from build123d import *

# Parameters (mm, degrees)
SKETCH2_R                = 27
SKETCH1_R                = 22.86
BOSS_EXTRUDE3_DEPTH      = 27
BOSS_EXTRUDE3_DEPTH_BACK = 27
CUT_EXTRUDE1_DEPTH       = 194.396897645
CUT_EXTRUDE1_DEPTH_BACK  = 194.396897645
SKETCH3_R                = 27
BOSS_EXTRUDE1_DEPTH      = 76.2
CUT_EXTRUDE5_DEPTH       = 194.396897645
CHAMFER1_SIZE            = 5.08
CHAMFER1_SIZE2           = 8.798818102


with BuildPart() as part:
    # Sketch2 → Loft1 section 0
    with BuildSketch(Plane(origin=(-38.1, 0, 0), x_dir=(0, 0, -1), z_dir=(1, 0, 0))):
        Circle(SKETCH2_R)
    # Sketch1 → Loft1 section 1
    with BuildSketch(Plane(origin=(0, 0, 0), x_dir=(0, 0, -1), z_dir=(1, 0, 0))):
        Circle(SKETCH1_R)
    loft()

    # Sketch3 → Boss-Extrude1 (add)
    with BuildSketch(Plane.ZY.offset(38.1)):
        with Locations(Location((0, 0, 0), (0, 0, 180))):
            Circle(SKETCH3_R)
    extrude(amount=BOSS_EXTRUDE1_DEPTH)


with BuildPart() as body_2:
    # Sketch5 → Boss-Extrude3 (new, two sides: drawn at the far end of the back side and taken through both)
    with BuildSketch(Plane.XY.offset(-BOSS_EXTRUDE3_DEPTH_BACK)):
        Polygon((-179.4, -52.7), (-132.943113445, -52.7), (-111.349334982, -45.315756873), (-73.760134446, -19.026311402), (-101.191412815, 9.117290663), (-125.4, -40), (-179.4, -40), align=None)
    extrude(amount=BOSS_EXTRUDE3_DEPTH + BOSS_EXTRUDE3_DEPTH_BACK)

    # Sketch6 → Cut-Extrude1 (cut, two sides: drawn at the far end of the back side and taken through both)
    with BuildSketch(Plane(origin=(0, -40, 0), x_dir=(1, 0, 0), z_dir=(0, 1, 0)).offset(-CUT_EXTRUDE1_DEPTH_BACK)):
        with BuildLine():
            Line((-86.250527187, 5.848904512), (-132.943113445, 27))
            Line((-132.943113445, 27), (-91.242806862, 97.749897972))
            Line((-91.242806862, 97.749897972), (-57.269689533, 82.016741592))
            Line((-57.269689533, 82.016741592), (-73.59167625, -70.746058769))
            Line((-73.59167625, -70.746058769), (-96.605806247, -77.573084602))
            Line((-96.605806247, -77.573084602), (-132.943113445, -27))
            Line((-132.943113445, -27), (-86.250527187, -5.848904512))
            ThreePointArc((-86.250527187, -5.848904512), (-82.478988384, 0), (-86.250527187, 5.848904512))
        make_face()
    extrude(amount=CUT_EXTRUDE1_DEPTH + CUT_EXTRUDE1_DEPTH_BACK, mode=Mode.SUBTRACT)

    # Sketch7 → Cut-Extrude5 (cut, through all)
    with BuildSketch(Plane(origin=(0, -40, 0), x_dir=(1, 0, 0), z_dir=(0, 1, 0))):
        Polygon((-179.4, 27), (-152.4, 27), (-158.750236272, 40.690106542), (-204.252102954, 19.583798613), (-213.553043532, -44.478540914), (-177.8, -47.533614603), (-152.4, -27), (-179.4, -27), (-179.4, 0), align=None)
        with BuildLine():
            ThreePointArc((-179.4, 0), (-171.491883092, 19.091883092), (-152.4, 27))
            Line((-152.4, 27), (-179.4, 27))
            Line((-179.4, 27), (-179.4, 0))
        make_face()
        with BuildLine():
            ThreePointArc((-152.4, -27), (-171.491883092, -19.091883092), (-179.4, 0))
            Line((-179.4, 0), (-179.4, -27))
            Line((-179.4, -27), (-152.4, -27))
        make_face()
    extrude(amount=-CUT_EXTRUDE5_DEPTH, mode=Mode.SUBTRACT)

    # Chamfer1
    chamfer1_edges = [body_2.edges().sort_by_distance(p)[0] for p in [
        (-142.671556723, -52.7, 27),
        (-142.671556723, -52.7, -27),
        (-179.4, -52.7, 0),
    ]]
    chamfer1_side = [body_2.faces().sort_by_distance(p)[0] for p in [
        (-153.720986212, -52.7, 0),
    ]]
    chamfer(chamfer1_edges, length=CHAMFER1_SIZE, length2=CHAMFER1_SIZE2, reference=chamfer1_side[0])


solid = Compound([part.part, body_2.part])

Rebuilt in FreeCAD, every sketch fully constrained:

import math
import FreeCAD as App
import Part
import Sketcher
Q = App.Units.Quantity


def edges_at(feature, points):
    """Names of the edges that pass closest to the given points."""
    edges = feature.Shape.Edges
    near = lambda p: min(range(len(edges)), key=lambda i: edges[i].distToShape(Part.Vertex(*p))[0])
    return sorted({f"Edge{near(p) + 1}" for p in points})

doc = App.newDocument("Part")
body = doc.addObject("PartDesign::Body", "Body")

sketch1 = body.newObject("Sketcher::SketchObject", "Sketch")
sketch1.AttachmentSupport = (doc.getObject("YZ_Plane"), [""])
sketch1.MapMode = "FlatFace"
sketch1.AttachmentOffset = App.Placement(App.Vector(0, 0, -1.5 * 25.4), App.Rotation())
sketch1.addGeometry(Part.Circle(App.Vector(0, 0, 0), App.Vector(0, 0, 1), 27), False)
sketch1.addConstraint([
    Sketcher.Constraint("Coincident", 0, 3, -1, 1),
    Sketcher.Constraint("Diameter", 0, Q("54 mm")),
])

sketch2 = body.newObject("Sketcher::SketchObject", "Sketch001")
sketch2.AttachmentSupport = (doc.getObject("YZ_Plane"), [""])
sketch2.MapMode = "FlatFace"
sketch2.addGeometry(Part.Circle(App.Vector(0, 0, 0), App.Vector(0, 0, 1), 22.86), False)
sketch2.addConstraint([
    Sketcher.Constraint("Coincident", 0, 3, -1, 1),
    Sketcher.Constraint("Diameter", 0, Q("1.8 in")),
])

additiveloft = body.newObject("PartDesign::AdditiveLoft", "AdditiveLoft")
additiveloft.Profile = sketch1
additiveloft.Sections = [sketch2]

sketch3 = body.newObject("Sketcher::SketchObject", "Sketch002")
sketch3.AttachmentSupport = (doc.getObject("YZ_Plane"), [""])
sketch3.MapMode = "FlatFace"
sketch3.AttachmentOffset = App.Placement(App.Vector(0, 0, -1.5 * 25.4), App.Rotation())
sketch3.addGeometry(Part.Circle(App.Vector(0, 0, 0), App.Vector(0, 0, 1), 27), False)
sketch3.addConstraint([
    Sketcher.Constraint("Coincident", 0, 3, -1, 1),
    Sketcher.Constraint("Diameter", 0, Q("54 mm")),
])
pad1 = body.newObject("PartDesign::Pad", "Pad")
pad1.Profile = sketch3
pad1.Length = Q("3 in")
pad1.Reversed = True
body2 = doc.addObject("PartDesign::Body", "Body001")

sketch4 = body2.newObject("Sketcher::SketchObject", "Sketch003")
sketch4.AttachmentSupport = (doc.getObject("XY_Plane001"), [""])
sketch4.MapMode = "FlatFace"
sketch4.addGeometry([
    Part.LineSegment(App.Vector(-179.4, -52.7, 0), App.Vector(-132.943113, -52.7, 0)),
    Part.LineSegment(App.Vector(-132.943113, -52.7, 0), App.Vector(-111.349335, -45.315757, 0)),
    Part.LineSegment(App.Vector(-111.349335, -45.315757, 0), App.Vector(-73.760134, -19.026311, 0)),
    Part.LineSegment(App.Vector(-73.760134, -19.026311, 0), App.Vector(-101.191413, 9.117291, 0)),
    Part.LineSegment(App.Vector(-101.191413, 9.117291, 0), App.Vector(-125.4, -40, 0)),
    Part.LineSegment(App.Vector(-125.4, -40, 0), App.Vector(-179.4, -40, 0)),
    Part.LineSegment(App.Vector(-179.4, -40, 0), App.Vector(-179.4, -52.7, 0)),
], False)
sketch4.addConstraint([
    Sketcher.Constraint("Coincident", 0, 2, 1, 1),
    Sketcher.Constraint("Coincident", 1, 2, 2, 1),
    Sketcher.Constraint("Coincident", 2, 2, 3, 1),
    Sketcher.Constraint("Coincident", 3, 2, 4, 1),
    Sketcher.Constraint("Coincident", 4, 2, 5, 1),
    Sketcher.Constraint("Coincident", 5, 2, 6, 1),
    Sketcher.Constraint("Coincident", 6, 2, 0, 1),
    Sketcher.Constraint("Horizontal", 0),
    Sketcher.Constraint("Horizontal", 5),
    Sketcher.Constraint("Vertical", 6),
    Sketcher.Constraint("DistanceY", 6, 2, 6, 1, Q("0.5 in")),
    Sketcher.Constraint("DistanceX", 5, 2, 5, 1, Q("54 mm")),
    Sketcher.Constraint("DistanceY", 0, 2, -1, 1, Q("52.7 mm")),
    Sketcher.Constraint("DistanceX", 4, 2, -1, 1, Q("125.4 mm")),
    Sketcher.Constraint("DistanceX", 1, 2, 2, 2, Q("37.589201 mm")),
    Sketcher.Constraint("DistanceX", 0, 2, 3, 2, Q("31.751701 mm")),
    Sketcher.Constraint("DistanceX", 0, 1, 0, 2, Q("46.456887 mm")),
    Sketcher.Constraint("DistanceY", 2, 2, -1, 1, Q("19.026311 mm")),
    Sketcher.Constraint("DistanceY", -1, 1, 3, 2, Q("9.117291 mm")),
    Sketcher.Constraint("DistanceX", 0, 2, 1, 2, Q("21.593778 mm")),
    Sketcher.Constraint("Distance", 1, Q("22.821444 mm")),
])
pad2 = body2.newObject("PartDesign::Pad", "Pad001")
pad2.Profile = sketch4
pad2.Type = "TwoLengths"
pad2.Length = 27
pad2.Length2 = 27

sketch5 = body2.newObject("Sketcher::SketchObject", "Sketch004")
sketch5.AttachmentSupport = (doc.getObject("XZ_Plane001"), [""])
sketch5.MapMode = "FlatFace"
sketch5.AttachmentOffset = App.Placement(App.Vector(0, 0, 40), App.Rotation())
sketch5.addGeometry([
    Part.LineSegment(App.Vector(-132.943113, -27, 0), App.Vector(-86.250527, -5.848905, 0)),
    Part.ArcOfCircle(Part.Circle(App.Vector(-88.9, 0, 0), App.Vector(0, 0, 1), 6.421012), math.radians(-65.630131), math.radians(65.630131)),
    Part.LineSegment(App.Vector(-86.250527, 5.848905, 0), App.Vector(-132.943113, 27, 0)),
    Part.LineSegment(App.Vector(-132.943113, 27, 0), App.Vector(-96.605806, 77.573085, 0)),
    Part.LineSegment(App.Vector(-96.605806, 77.573085, 0), App.Vector(-73.591676, 70.746059, 0)),
    Part.LineSegment(App.Vector(-73.591676, 70.746059, 0), App.Vector(-57.26969, -82.016742, 0)),
    Part.LineSegment(App.Vector(-57.26969, -82.016742, 0), App.Vector(-91.242807, -97.749898, 0)),
    Part.LineSegment(App.Vector(-91.242807, -97.749898, 0), App.Vector(-132.943113, -27, 0)),
], False)
sketch5.addConstraint([
    Sketcher.Constraint("Tangent", 0, 2, 1, 1),
    Sketcher.Constraint("Tangent", 1, 2, 2, 1),
    Sketcher.Constraint("Coincident", 2, 2, 3, 1),
    Sketcher.Constraint("Coincident", 3, 2, 4, 1),
    Sketcher.Constraint("Coincident", 4, 2, 5, 1),
    Sketcher.Constraint("Coincident", 5, 2, 6, 1),
    Sketcher.Constraint("Coincident", 6, 2, 7, 1),
    Sketcher.Constraint("Coincident", 7, 2, 0, 1),
    Sketcher.Constraint("Symmetric", 0, 2, 1, 2, -1),
    Sketcher.Constraint("Vertical", 2, 2, 7, 2),
    Sketcher.Constraint("DistanceX", 1, 3, -1, 1, Q("3.5 in")),
    Sketcher.Constraint("Radius", 1, Q("6.421012 mm")),
    Sketcher.Constraint("DistanceY", -1, 1, 2, 2, Q("27 mm")),
    Sketcher.Constraint("DistanceY", 5, 2, 4, 2, Q("152.7628 mm")),
    Sketcher.Constraint("Distance", 5, Q("153.63229 mm")),
    Sketcher.Constraint("Distance", 6, Q("37.43935 mm")),
    Sketcher.Constraint("DistanceY", -1, 1, 4, 2, Q("70.746059 mm")),
    Sketcher.Constraint("DistanceX", 5, 2, -1, 1, Q("57.26969 mm")),
    Sketcher.Constraint("DistanceY", 0, 2, 1, 2, Q("11.697809 mm")),
    Sketcher.Constraint("DistanceX", 3, 2, 1, 2, Q("10.355279 mm")),
    Sketcher.Constraint("DistanceY", 1, 2, 3, 2, Q("71.72418 mm")),
    Sketcher.Constraint("DistanceX", 6, 2, 0, 2, Q("4.99228 mm")),
])
pocket1 = body2.newObject("PartDesign::Pocket", "Pocket")
pocket1.Profile = sketch5
pocket1.Type = "ThroughAll"
pocket1.Midplane = True

sketch6 = body2.newObject("Sketcher::SketchObject", "Sketch005")
sketch6.AttachmentSupport = (doc.getObject("XZ_Plane001"), [""])
sketch6.MapMode = "FlatFace"
sketch6.AttachmentOffset = App.Placement(App.Vector(0, 0, 40), App.Rotation())
sketch6.addGeometry([
    Part.LineSegment(App.Vector(-152.4, -27, 0), App.Vector(-158.750236, -40.690107, 0)),
    Part.LineSegment(App.Vector(-158.750236, -40.690107, 0), App.Vector(-204.252103, -19.583799, 0)),
    Part.LineSegment(App.Vector(-204.252103, -19.583799, 0), App.Vector(-213.553044, 44.478541, 0)),
    Part.LineSegment(App.Vector(-213.553044, 44.478541, 0), App.Vector(-177.8, 47.533615, 0)),
    Part.LineSegment(App.Vector(-177.8, 47.533615, 0), App.Vector(-152.4, 27, 0)),
    Part.ArcOfCircle(Part.Circle(App.Vector(-152.4, 0, 0), App.Vector(0, 0, 1), 27), math.radians(90), math.radians(180)),
    Part.ArcOfCircle(Part.Circle(App.Vector(-152.4, 0, 0), App.Vector(0, 0, 1), 27), math.radians(180), math.radians(270)),
], False)
sketch6.addConstraint([
    Sketcher.Constraint("Coincident", 0, 2, 1, 1),
    Sketcher.Constraint("Coincident", 1, 2, 2, 1),
    Sketcher.Constraint("Coincident", 2, 2, 3, 1),
    Sketcher.Constraint("Coincident", 3, 2, 4, 1),
    Sketcher.Constraint("Coincident", 4, 2, 5, 1),
    Sketcher.Constraint("Tangent", 5, 2, 6, 1),
    Sketcher.Constraint("Coincident", 6, 2, 0, 1),
    Sketcher.Constraint("Equal", 5, 6),
    Sketcher.Constraint("Symmetric", 4, 2, 6, 2, -1),
    Sketcher.Constraint("PointOnObject", 5, 2, -1),
    Sketcher.Constraint("Perpendicular", 0, 1),
    Sketcher.Constraint("Vertical", 6, 3, 4, 2),
    Sketcher.Constraint("DistanceX", 5, 3, -1, 1, Q("6 in")),
    Sketcher.Constraint("DistanceX", 3, 2, -1, 1, Q("7 in")),
    Sketcher.Constraint("Radius", 5, Q("27 mm")),
    Sketcher.Constraint("DistanceX", 2, 2, -1, 1, Q("8.4076001 in")),
    Sketcher.Constraint("Distance", 2, Q("64.734001 mm")),
    Sketcher.Constraint("DistanceY", 1, 2, -1, 1, Q("19.583799 mm")),
    Sketcher.Constraint("Distance", 1, Q("50.158709 mm")),
    Sketcher.Constraint("Distance", 4, Q("32.661741 mm")),
    Sketcher.Constraint("DistanceY", -1, 1, 2, 2, Q("44.478541 mm")),
])
pocket2 = body2.newObject("PartDesign::Pocket", "Pocket001")
pocket2.Profile = sketch6
pocket2.Type = "ThroughAll"
pocket2.Reversed = True
doc.recompute()

chamfer = body2.newObject("PartDesign::Chamfer", "Chamfer")
chamfer.Base = (pocket2, edges_at(pocket2, [(-142.672, -52.7, 27), (-142.672, -52.7, -27), (-171.492, -52.7, -19.092)]))
chamfer.ChamferType = "Two distances"
chamfer.Size = Q("0.2 in")
chamfer.Size2 = 8.798818

doc.recompute()
